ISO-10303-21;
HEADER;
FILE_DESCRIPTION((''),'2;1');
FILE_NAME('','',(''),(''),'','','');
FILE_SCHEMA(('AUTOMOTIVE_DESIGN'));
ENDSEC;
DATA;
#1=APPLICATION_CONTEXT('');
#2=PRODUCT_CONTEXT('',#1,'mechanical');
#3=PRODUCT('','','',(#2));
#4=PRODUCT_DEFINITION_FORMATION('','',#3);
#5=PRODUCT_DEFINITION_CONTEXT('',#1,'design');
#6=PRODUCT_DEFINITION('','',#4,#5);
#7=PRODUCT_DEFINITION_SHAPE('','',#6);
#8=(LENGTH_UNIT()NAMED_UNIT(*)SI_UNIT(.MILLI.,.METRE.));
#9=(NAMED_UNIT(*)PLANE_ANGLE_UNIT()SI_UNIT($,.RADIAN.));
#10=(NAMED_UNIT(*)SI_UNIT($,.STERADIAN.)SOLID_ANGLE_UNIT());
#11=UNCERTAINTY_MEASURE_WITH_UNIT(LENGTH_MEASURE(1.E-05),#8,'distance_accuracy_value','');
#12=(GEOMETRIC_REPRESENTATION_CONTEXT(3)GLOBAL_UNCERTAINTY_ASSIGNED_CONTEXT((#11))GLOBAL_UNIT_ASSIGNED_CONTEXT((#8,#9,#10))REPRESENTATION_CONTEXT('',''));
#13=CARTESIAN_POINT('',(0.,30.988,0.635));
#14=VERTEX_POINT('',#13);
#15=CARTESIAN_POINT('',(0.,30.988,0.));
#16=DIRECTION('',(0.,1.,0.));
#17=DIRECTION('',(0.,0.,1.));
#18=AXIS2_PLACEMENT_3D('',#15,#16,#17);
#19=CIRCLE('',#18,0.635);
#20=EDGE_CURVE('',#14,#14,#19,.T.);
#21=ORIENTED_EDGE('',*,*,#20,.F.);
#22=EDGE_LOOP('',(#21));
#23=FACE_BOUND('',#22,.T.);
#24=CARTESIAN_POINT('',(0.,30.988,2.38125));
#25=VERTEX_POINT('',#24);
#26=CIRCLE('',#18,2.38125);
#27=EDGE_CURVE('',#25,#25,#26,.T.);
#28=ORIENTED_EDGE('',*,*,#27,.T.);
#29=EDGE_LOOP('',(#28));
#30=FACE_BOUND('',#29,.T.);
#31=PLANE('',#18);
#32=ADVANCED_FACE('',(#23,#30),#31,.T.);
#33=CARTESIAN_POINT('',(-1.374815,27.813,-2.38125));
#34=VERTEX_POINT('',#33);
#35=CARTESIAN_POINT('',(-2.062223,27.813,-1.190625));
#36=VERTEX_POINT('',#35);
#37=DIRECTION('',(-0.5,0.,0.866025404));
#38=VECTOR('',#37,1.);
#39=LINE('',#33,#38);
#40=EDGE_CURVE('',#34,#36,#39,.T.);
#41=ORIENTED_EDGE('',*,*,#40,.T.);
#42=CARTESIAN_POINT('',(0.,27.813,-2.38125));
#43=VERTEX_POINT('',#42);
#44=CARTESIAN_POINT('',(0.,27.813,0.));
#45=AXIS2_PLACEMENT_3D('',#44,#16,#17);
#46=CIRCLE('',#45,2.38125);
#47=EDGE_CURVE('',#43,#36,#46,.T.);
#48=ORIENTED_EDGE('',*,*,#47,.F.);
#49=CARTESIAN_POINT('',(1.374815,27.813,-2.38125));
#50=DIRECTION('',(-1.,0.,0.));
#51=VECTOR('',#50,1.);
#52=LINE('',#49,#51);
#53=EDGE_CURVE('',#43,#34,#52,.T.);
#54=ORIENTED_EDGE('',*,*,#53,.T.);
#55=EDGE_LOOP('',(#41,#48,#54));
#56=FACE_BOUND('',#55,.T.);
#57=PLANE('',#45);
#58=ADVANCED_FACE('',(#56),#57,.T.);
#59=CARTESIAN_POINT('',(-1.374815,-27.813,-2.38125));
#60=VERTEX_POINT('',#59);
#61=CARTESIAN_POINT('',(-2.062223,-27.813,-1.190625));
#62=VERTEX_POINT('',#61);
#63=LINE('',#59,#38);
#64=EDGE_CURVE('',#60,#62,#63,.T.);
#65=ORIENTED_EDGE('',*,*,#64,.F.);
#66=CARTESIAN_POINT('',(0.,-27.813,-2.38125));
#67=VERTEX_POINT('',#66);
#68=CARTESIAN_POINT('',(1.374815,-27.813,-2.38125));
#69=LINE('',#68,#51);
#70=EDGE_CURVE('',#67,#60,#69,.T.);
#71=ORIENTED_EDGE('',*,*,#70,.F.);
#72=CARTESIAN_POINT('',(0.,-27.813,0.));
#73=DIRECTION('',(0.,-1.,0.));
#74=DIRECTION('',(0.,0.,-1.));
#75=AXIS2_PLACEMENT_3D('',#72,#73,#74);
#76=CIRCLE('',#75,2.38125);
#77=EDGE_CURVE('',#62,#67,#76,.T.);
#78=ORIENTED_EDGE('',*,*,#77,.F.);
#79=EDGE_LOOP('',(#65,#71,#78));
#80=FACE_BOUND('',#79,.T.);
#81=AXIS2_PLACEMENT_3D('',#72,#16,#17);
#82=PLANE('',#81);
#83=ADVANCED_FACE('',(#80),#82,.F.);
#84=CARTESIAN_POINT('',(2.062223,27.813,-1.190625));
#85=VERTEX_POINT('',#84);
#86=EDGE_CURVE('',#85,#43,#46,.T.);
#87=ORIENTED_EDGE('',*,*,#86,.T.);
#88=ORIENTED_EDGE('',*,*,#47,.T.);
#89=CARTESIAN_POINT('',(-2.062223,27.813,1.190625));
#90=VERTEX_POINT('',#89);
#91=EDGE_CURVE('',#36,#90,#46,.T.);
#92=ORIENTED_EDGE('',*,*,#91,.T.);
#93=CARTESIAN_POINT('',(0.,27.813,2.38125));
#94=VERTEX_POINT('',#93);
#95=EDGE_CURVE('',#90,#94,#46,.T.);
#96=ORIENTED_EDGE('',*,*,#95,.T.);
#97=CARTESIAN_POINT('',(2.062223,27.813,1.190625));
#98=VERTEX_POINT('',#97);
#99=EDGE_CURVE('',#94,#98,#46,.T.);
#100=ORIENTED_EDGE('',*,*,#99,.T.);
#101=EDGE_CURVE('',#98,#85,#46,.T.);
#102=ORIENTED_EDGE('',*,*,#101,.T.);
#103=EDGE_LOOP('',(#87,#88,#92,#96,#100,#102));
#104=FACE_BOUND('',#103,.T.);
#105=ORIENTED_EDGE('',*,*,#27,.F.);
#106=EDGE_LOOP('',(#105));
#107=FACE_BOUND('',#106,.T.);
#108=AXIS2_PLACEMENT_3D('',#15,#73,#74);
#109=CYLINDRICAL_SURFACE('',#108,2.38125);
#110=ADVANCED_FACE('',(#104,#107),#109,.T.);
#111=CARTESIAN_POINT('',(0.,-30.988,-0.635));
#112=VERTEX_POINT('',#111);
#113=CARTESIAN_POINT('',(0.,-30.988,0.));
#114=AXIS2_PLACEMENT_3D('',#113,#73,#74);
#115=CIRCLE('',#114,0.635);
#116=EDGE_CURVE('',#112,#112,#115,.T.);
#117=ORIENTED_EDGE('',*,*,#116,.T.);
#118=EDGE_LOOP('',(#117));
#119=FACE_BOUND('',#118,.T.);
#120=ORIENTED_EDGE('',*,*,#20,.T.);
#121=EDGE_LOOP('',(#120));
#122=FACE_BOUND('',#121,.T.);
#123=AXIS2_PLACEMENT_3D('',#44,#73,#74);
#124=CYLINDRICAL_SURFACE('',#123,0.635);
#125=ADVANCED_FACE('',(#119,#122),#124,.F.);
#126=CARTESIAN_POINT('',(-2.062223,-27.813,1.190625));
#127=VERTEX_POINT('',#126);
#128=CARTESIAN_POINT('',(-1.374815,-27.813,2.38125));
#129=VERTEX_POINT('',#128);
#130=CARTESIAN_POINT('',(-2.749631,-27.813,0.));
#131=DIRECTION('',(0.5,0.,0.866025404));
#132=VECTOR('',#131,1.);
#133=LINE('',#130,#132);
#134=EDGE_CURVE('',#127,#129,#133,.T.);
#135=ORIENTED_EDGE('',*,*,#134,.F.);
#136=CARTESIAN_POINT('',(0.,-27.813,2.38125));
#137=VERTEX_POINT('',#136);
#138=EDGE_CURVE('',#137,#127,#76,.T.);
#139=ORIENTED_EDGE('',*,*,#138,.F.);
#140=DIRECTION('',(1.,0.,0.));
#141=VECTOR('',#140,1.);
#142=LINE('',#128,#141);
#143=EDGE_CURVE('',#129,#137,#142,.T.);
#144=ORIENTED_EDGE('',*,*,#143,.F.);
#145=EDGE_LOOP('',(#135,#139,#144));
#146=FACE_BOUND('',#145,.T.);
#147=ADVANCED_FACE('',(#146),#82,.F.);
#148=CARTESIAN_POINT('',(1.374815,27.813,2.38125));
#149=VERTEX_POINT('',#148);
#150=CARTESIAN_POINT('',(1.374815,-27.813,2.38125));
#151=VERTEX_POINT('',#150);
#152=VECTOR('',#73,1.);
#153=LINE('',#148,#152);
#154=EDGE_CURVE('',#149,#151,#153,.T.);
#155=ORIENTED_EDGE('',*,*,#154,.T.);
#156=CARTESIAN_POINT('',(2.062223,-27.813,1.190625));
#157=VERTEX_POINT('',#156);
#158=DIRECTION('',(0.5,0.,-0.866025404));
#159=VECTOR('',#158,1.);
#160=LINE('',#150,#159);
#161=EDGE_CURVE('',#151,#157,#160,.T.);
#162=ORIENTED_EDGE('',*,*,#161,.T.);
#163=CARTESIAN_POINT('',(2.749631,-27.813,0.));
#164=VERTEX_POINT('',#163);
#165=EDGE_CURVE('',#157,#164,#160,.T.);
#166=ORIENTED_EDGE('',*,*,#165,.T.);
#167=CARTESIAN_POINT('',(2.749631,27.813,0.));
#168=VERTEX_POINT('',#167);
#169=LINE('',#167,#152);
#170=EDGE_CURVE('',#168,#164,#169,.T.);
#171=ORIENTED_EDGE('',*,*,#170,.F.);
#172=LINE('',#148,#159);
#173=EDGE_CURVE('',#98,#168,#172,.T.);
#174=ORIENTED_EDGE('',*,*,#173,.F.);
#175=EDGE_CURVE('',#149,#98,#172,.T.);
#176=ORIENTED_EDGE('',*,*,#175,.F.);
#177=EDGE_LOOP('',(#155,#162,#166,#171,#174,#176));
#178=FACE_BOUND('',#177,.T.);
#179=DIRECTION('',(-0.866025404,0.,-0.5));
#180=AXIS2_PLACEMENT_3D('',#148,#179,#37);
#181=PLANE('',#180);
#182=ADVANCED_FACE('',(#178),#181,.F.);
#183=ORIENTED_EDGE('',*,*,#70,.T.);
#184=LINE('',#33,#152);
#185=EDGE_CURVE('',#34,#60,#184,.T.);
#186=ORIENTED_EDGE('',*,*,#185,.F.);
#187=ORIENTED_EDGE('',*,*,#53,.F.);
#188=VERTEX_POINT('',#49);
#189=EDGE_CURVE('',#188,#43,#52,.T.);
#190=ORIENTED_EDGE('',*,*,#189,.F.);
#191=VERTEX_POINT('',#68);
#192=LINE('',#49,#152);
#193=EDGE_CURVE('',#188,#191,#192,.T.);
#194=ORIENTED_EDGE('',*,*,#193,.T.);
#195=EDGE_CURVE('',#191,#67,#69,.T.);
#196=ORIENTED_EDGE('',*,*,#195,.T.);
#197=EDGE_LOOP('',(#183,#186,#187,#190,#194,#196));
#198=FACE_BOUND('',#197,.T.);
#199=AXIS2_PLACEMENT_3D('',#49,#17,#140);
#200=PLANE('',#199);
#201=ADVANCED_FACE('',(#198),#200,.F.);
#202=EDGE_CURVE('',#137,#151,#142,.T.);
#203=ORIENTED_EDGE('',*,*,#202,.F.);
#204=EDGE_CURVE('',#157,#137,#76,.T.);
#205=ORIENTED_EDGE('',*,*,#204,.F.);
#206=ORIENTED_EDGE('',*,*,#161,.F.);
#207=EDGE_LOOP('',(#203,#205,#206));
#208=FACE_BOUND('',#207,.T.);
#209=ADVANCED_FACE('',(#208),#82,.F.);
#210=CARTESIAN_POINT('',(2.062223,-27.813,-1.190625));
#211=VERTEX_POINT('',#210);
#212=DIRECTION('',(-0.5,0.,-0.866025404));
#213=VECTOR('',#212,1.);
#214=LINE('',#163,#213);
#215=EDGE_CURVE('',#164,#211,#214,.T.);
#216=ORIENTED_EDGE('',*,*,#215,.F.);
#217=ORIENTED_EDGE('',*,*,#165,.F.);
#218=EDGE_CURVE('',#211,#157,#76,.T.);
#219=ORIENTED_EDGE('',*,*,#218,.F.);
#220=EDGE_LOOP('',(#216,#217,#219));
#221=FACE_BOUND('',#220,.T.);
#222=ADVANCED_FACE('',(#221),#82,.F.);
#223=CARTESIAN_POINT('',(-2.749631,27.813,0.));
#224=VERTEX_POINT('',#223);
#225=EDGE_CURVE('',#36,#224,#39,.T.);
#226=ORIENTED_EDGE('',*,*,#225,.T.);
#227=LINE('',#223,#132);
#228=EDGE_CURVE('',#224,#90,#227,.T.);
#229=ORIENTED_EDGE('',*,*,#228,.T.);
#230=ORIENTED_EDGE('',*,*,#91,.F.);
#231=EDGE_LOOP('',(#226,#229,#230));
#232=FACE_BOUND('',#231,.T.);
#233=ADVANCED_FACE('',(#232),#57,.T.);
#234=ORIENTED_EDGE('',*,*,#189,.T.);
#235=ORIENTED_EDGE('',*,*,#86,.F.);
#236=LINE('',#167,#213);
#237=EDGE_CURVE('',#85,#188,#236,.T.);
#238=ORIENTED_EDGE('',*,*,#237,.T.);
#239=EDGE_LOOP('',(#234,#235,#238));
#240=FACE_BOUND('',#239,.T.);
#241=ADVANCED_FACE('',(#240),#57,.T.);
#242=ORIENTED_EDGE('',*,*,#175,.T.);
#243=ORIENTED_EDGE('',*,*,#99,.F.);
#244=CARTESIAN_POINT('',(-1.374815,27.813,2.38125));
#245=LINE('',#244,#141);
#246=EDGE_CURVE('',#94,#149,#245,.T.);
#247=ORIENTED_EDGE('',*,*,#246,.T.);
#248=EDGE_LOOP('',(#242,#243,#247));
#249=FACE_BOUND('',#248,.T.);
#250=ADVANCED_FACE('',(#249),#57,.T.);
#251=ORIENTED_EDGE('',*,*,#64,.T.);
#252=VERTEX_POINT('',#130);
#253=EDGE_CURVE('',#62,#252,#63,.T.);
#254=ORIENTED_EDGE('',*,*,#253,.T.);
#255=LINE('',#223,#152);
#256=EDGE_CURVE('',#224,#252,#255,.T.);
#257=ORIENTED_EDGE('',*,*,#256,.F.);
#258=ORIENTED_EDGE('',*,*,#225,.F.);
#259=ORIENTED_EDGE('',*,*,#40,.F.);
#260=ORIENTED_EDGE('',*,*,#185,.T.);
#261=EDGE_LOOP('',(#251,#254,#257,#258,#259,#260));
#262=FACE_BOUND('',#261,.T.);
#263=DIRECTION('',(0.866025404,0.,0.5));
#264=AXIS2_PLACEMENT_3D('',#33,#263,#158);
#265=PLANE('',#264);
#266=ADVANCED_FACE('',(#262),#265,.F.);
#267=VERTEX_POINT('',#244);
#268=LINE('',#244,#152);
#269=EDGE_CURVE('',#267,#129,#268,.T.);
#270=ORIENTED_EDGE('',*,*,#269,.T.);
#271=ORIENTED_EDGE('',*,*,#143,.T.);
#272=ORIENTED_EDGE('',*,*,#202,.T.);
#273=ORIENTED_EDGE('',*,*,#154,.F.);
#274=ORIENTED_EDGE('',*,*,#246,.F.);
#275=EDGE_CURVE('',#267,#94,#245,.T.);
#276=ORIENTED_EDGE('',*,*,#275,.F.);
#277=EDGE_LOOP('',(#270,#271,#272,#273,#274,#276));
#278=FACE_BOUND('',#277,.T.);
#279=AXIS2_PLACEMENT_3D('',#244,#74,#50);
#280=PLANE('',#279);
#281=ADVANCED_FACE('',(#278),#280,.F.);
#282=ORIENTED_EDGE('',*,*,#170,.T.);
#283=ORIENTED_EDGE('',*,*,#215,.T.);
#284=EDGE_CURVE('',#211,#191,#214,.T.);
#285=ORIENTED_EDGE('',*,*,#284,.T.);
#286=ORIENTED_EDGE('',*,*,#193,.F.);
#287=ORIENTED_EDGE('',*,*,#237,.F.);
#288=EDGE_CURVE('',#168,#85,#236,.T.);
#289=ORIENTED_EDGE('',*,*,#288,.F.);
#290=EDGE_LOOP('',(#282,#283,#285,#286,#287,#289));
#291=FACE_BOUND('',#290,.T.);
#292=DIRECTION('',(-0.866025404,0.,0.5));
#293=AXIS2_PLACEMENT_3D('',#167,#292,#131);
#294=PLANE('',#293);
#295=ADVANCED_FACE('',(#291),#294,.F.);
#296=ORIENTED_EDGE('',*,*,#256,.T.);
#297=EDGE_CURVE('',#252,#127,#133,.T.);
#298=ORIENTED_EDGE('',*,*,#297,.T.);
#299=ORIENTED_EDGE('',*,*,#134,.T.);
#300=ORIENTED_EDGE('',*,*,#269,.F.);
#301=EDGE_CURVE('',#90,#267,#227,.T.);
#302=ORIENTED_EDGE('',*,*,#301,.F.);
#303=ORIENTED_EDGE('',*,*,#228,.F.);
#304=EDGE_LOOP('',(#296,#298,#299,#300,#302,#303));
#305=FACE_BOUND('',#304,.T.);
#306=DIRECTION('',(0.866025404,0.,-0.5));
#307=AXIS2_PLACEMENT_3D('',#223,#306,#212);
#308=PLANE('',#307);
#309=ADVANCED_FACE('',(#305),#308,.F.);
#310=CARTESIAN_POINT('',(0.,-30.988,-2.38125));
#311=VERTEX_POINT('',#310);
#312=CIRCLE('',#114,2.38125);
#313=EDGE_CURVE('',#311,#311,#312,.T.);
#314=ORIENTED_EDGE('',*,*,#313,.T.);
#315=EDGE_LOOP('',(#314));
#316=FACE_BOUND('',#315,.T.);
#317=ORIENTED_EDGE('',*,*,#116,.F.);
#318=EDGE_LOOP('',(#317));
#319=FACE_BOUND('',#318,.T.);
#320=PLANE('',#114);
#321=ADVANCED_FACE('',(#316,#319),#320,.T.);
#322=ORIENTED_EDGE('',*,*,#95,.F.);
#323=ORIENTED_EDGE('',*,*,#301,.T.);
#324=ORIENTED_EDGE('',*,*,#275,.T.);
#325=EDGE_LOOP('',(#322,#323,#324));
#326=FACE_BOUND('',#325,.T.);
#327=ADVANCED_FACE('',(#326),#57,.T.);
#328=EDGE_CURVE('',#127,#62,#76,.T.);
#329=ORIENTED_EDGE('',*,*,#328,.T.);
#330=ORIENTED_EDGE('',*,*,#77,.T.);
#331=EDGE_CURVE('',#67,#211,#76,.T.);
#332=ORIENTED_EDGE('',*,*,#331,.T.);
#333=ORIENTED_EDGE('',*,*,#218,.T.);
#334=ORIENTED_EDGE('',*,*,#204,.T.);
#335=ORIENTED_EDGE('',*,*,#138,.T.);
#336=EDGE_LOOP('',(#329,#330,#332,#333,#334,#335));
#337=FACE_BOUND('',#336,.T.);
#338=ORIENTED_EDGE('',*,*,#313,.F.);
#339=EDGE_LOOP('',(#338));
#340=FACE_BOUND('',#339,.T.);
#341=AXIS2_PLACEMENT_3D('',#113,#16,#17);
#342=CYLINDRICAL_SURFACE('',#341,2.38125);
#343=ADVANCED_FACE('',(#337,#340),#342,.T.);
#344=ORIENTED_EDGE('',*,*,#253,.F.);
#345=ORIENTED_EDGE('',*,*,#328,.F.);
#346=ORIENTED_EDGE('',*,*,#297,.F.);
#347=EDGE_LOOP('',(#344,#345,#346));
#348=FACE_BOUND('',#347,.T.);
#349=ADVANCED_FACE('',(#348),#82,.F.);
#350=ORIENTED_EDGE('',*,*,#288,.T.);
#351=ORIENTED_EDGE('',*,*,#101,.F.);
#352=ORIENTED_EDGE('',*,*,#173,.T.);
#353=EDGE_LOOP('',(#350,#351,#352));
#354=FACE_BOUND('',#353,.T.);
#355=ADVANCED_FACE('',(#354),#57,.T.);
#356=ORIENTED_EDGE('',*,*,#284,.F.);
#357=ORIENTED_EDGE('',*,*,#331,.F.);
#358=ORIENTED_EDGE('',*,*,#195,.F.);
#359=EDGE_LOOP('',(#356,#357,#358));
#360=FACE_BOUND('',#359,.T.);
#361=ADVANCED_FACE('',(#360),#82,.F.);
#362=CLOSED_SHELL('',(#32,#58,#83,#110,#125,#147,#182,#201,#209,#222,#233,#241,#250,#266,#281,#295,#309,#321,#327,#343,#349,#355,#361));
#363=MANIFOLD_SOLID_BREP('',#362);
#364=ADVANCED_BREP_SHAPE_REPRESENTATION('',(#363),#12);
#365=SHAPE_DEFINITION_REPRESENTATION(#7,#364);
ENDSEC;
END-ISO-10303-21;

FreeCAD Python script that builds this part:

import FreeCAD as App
import Part
import Sketcher

V = App.Vector
Q = App.Units.Quantity


def add_polygon(sketch, points):
    """Adds a closed chain of lines whose ends are joined by coincident constraints."""
    first, n = sketch.GeometryCount, len(points)
    for a, b in zip(points, points[1:] + points[:1]):
        sketch.addGeometry(Part.LineSegment(App.Vector(*a, 0), App.Vector(*b, 0)), False)
    for i in range(n):
        sketch.addConstraint(Sketcher.Constraint("Coincident", first + i, 2, first + (i + 1) % n, 1))

doc = App.newDocument("Part")
body = doc.addObject("PartDesign::Body", "Body")

# Sketch on XZ plane
sketch1 = doc.addObject("Sketcher::SketchObject", "Sketch")
body.addObject(sketch1)
sketch1.AttachmentSupport = (doc.XZ_Plane, [""])
sketch1.MapMode = "FlatFace"
add_polygon(sketch1, [(1.4, 2.4), (2.7, 0), (1.4, -2.4), (-1.4, -2.4), (-2.7, 0), (-1.4, 2.4)])  # lines 0-5
sketch1.addGeometry(Part.Circle(V(0, 0, 0), V(0, 0, 1), 0.6), False)  # 6
sketch1.addConstraint([
    Sketcher.Constraint("Horizontal", 2),
    Sketcher.Constraint("Horizontal", 5),
    Sketcher.Constraint("Coincident", 6, 3, -1, 1),
    Sketcher.Constraint("Symmetric", 0, 2, 3, 2, -1, 1),
    Sketcher.Constraint("Symmetric", 1, 2, 4, 2, -1, 1),
    Sketcher.Constraint("PointOnObject", 0, 2, -1),
    Sketcher.Constraint("Parallel", 0, 3),
    Sketcher.Constraint("Vertical", 2, 2, 4, 2),
    Sketcher.Constraint("Diameter", 6, Q("0.05 in")),
    Sketcher.Constraint("Angle", 0, Q("-60 deg")),
    Sketcher.Constraint("DistanceY", 1, 2, -1, 1, Q("0.09375 in")),
    Sketcher.Constraint("DistanceX", 2, 2, 2, 1, Q("2.749631 mm")),
])
pad1 = doc.addObject("PartDesign::Pad", "Pad")
body.addObject(pad1)
pad1.Profile = sketch1
pad1.Length = Q("2.19 in")
pad1.Midplane = True

# Sketch on XZ plane
sketch2 = doc.addObject("Sketcher::SketchObject", "Sketch001")
body.addObject(sketch2)
sketch2.AttachmentSupport = (doc.XZ_Plane, [""])
sketch2.MapMode = "FlatFace"
sketch2.AttachmentOffset = App.Placement(V(0, 0, -1.095 * 25.4), App.Rotation())
sketch2.addGeometry([
    Part.Circle(V(0, 0, 0), V(0, 0, 1), 2.4),
    Part.Circle(V(0, 0, 0), V(0, 0, 1), 0.6),
], False)
sketch2.addConstraint([
    Sketcher.Constraint("Coincident", 0, 3, -1, 1),
    Sketcher.Constraint("Coincident", 1, 3, -1, 1),
    Sketcher.Constraint("Diameter", 1, Q("0.05 in")),
    Sketcher.Constraint("Diameter", 0, Q("0.1875 in")),
])
pad2 = doc.addObject("PartDesign::Pad", "Pad001")
body.addObject(pad2)
pad2.Profile = sketch2
pad2.Length = Q("0.125 in")
pad2.Reversed = True

# Sketch on XZ plane
sketch3 = doc.addObject("Sketcher::SketchObject", "Sketch002")
body.addObject(sketch3)
sketch3.AttachmentSupport = (doc.XZ_Plane, [""])
sketch3.MapMode = "FlatFace"
sketch3.AttachmentOffset = App.Placement(V(0, 0, 1.095 * 25.4), App.Rotation())
sketch3.addGeometry([
    Part.Circle(V(0, 0, 0), V(0, 0, 1), 2.4),
    Part.Circle(V(0, 0, 0), V(0, 0, 1), 0.6),
], False)
sketch3.addConstraint([
    Sketcher.Constraint("Coincident", 0, 3, -1, 1),
    Sketcher.Constraint("Coincident", 1, 3, -1, 1),
    Sketcher.Constraint("Diameter", 1, Q("0.05 in")),
    Sketcher.Constraint("Diameter", 0, Q("0.1875 in")),
])
pad3 = doc.addObject("PartDesign::Pad", "Pad002")
body.addObject(pad3)
pad3.Profile = sketch3
pad3.Length = Q("0.125 in")

doc.recompute()
